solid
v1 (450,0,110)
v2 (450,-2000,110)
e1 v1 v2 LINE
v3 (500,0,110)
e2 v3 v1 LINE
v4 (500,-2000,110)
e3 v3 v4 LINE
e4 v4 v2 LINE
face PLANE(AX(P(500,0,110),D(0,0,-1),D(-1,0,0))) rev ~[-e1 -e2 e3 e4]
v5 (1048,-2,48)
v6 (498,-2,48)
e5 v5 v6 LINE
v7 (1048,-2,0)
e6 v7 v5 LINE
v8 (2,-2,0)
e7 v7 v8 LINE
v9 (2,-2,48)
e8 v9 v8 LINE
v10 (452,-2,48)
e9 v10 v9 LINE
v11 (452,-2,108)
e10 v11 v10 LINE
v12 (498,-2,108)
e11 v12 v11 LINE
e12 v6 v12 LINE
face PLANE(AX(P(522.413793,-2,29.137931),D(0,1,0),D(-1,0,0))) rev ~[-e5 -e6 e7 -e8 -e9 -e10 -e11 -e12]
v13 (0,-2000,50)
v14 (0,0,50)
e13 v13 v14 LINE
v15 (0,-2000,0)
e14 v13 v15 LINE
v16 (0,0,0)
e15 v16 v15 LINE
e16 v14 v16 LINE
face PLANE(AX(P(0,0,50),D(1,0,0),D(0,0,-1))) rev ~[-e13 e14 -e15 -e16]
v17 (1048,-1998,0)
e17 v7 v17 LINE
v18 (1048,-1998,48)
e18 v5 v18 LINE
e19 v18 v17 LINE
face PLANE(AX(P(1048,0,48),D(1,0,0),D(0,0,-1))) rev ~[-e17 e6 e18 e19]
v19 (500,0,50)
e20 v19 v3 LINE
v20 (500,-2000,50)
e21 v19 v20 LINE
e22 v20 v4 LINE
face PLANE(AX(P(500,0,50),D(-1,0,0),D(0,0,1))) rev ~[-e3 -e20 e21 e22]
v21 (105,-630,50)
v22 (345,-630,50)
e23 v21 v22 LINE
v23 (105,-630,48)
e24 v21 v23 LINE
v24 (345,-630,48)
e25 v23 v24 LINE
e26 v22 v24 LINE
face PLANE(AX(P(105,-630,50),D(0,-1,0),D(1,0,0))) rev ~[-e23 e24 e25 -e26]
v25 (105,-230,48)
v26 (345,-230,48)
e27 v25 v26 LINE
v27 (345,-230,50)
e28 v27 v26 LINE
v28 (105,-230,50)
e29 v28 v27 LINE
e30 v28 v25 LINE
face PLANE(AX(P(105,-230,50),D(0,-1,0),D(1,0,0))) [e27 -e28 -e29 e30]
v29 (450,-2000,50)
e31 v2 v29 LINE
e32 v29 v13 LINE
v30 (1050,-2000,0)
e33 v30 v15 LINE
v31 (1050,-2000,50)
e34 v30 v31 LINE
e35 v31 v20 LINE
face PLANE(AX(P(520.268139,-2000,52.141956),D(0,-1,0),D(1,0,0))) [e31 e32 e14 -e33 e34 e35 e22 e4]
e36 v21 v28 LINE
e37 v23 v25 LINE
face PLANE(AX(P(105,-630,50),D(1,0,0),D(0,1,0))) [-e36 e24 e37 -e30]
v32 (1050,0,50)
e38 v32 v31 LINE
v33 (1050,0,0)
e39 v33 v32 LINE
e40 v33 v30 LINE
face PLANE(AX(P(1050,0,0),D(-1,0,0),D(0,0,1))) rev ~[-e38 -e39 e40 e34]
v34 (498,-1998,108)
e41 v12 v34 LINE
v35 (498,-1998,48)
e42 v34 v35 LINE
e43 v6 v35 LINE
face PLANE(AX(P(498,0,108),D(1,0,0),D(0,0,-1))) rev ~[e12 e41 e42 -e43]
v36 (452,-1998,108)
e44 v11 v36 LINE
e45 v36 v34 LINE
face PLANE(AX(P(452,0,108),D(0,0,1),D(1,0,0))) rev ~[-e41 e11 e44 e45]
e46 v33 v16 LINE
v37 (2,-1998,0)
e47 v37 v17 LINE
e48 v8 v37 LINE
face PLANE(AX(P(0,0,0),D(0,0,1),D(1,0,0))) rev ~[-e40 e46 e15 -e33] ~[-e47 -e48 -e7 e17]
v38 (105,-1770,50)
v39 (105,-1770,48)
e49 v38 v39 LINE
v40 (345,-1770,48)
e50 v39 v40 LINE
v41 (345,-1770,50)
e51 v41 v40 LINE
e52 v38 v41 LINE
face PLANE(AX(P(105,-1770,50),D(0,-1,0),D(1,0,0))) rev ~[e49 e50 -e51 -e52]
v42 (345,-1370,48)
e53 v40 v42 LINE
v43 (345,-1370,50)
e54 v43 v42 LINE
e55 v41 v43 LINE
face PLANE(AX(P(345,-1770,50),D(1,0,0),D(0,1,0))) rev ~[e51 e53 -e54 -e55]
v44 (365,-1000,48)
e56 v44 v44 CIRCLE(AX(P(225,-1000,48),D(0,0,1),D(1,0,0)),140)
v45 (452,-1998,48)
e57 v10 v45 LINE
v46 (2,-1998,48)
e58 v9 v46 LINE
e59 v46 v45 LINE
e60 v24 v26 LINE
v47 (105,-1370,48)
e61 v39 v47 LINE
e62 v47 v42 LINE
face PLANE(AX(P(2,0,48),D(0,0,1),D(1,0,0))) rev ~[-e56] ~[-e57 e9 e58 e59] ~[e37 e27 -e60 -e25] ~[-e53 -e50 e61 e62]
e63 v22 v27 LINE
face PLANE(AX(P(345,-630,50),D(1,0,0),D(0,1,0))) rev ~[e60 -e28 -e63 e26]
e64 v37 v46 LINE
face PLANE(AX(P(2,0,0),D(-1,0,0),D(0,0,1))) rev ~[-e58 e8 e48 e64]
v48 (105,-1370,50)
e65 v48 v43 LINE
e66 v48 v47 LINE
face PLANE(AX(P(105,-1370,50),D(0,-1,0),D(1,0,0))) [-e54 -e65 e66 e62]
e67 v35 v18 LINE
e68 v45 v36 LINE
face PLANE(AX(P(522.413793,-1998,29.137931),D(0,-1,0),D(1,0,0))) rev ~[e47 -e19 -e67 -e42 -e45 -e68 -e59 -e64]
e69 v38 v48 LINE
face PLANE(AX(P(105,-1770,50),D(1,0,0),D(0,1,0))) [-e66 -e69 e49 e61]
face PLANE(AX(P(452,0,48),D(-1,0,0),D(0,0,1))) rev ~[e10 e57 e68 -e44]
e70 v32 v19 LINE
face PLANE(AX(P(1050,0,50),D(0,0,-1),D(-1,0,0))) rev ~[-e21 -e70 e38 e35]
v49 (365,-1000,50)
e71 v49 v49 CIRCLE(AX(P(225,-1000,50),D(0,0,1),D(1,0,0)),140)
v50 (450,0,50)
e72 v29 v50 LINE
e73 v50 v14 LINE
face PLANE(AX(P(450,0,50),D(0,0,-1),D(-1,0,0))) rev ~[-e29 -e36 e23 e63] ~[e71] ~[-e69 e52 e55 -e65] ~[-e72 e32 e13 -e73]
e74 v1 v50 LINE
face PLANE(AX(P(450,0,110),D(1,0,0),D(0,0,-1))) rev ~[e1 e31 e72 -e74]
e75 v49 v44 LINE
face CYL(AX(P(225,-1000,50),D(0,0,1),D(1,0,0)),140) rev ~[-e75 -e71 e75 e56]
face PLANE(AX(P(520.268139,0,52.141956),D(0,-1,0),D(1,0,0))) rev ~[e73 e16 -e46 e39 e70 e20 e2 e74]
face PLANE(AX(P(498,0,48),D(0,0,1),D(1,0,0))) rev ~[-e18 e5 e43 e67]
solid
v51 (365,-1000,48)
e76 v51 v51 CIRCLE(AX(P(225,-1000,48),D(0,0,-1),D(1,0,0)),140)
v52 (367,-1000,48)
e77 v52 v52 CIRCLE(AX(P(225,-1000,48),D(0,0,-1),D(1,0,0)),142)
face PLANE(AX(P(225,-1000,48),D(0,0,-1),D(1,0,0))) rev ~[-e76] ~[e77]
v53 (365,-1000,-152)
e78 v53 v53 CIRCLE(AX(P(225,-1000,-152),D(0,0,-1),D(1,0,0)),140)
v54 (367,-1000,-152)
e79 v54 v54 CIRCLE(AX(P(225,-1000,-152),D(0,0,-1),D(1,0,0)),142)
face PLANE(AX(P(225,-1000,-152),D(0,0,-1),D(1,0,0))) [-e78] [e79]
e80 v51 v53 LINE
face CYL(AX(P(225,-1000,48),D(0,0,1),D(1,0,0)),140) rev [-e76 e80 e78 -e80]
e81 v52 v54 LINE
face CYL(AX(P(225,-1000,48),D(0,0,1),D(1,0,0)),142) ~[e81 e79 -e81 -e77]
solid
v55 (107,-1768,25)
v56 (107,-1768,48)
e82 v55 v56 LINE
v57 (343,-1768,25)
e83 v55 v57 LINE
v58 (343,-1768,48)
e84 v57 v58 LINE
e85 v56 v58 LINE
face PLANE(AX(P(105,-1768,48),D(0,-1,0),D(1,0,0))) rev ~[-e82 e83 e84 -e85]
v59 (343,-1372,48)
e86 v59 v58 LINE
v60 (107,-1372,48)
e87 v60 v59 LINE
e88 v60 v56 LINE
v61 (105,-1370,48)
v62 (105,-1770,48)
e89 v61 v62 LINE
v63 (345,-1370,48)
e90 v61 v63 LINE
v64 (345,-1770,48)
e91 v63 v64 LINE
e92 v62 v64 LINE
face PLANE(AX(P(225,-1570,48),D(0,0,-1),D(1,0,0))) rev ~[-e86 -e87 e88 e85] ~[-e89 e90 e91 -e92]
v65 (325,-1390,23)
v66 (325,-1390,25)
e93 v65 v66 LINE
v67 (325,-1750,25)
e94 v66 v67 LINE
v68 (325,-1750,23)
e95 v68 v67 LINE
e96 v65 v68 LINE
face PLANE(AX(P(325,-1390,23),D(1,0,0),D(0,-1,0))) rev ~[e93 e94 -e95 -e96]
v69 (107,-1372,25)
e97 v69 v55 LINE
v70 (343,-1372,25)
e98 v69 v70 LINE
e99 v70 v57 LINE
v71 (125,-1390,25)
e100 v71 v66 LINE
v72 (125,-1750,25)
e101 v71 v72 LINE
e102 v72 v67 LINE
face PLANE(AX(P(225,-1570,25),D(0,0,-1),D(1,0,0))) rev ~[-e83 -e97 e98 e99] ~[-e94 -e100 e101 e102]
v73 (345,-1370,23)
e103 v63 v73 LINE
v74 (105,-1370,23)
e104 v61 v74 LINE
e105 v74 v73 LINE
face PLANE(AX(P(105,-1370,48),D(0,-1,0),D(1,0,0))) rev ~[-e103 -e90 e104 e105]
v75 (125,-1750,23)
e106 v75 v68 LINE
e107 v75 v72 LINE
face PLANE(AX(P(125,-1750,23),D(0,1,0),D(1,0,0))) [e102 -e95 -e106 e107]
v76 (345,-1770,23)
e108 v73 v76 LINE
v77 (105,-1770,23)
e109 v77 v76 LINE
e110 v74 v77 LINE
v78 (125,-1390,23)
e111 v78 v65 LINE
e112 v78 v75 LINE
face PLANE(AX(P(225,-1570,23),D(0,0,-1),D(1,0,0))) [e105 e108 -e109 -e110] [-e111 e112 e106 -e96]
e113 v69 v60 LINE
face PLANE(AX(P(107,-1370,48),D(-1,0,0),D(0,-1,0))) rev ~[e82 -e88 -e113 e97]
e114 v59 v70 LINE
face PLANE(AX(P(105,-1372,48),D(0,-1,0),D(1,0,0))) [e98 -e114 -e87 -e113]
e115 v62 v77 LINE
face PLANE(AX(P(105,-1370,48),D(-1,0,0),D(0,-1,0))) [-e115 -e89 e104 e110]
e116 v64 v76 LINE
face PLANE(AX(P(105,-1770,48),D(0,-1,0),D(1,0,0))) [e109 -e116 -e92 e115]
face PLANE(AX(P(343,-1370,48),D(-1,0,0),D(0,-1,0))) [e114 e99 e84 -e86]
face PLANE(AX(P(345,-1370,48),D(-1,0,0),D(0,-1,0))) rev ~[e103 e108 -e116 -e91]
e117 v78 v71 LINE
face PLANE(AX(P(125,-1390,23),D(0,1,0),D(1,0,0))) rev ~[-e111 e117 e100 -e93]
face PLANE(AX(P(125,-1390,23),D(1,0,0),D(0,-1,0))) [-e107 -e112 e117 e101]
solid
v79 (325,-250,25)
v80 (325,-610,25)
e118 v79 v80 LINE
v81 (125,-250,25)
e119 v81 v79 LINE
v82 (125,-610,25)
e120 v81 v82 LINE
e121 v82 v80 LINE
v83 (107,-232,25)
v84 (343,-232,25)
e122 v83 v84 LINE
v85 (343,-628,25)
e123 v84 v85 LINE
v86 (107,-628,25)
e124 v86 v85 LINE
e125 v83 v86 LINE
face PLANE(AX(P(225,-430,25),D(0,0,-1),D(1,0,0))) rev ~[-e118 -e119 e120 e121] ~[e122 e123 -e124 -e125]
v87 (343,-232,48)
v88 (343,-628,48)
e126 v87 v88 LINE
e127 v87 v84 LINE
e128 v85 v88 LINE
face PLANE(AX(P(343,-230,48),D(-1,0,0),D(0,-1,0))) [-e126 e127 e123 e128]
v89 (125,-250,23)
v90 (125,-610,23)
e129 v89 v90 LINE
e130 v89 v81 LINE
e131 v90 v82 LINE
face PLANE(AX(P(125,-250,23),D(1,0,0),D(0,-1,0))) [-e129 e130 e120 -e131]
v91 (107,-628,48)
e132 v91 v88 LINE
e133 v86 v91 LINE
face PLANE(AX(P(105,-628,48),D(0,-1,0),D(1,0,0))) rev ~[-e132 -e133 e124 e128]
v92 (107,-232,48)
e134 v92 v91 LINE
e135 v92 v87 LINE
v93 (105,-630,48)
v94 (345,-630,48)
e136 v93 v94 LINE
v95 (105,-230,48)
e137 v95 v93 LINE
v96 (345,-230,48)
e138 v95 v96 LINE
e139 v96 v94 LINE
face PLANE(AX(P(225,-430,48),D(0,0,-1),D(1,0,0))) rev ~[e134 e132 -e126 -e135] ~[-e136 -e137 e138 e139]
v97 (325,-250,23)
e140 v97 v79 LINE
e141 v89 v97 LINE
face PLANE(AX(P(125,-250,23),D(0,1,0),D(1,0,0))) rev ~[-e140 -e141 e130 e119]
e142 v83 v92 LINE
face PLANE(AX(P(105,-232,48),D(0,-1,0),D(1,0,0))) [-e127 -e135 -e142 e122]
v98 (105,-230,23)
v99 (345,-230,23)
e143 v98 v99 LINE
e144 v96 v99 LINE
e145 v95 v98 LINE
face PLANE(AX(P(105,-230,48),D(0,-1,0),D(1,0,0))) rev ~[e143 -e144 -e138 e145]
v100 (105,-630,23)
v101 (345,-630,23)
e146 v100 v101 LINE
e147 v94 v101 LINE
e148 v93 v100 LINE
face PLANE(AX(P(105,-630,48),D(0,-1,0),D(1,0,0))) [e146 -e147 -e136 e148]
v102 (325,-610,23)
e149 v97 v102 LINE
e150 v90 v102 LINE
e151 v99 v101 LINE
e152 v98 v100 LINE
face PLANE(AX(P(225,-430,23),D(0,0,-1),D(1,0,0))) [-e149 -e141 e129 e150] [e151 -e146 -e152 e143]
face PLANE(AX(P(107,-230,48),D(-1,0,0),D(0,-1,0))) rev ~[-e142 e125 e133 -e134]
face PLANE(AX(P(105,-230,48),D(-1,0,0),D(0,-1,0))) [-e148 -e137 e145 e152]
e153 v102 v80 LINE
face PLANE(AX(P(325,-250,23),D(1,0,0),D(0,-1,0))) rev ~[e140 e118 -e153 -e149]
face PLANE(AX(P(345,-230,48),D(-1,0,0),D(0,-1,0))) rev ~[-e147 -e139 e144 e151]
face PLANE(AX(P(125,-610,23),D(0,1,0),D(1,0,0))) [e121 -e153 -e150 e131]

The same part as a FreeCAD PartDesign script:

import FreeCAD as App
import Part
import Sketcher


def faces_at(feature, points):
    """Names of the faces that lie closest to the given points."""
    faces = feature.Shape.Faces
    near = lambda p: min(range(len(faces)), key=lambda i: faces[i].distToShape(Part.Vertex(*p))[0])
    return sorted({f"Face{near(p) + 1}" for p in points})


def add_polygon(sketch, points):
    """Adds a closed chain of lines whose ends are joined by coincident constraints."""
    first, n = sketch.GeometryCount, len(points)
    for a, b in zip(points, points[1:] + points[:1]):
        sketch.addGeometry(Part.LineSegment(App.Vector(*a, 0), App.Vector(*b, 0)), False)
    for i in range(n):
        sketch.addConstraint(Sketcher.Constraint("Coincident", first + i, 2, first + (i + 1) % n, 1))

doc = App.newDocument("Part")
body = doc.addObject("PartDesign::Body", "Body")

sketch1 = doc.addObject("Sketcher::SketchObject", "Sketch")
body.addObject(sketch1)
sketch1.AttachmentSupport = (doc.XZ_Plane, [""])
sketch1.MapMode = "FlatFace"
add_polygon(sketch1, [(0, 50), (0, 0), (2, 0), (2, 48), (452, 48), (452, 108), (498, 108), (498, 48), (1048, 48), (1048, 0), (1050, 0), (1050, 50), (500, 50), (500, 110), (450, 110), (450, 50)])
sketch1.addConstraint([
    Sketcher.Constraint("Vertical", 0),
    Sketcher.Constraint("Horizontal", 1),
    Sketcher.Constraint("Vertical", 2),
    Sketcher.Constraint("Horizontal", 3),
    Sketcher.Constraint("Vertical", 4),
    Sketcher.Constraint("Horizontal", 5),
    Sketcher.Constraint("Vertical", 6),
    Sketcher.Constraint("Horizontal", 7),
    Sketcher.Constraint("Vertical", 8),
    Sketcher.Constraint("Horizontal", 9),
    Sketcher.Constraint("Vertical", 10),
    Sketcher.Constraint("Horizontal", 11),
    Sketcher.Constraint("Vertical", 12),
    Sketcher.Constraint("Horizontal", 13),
    Sketcher.Constraint("Vertical", 14),
    Sketcher.Constraint("Horizontal", 15),
    Sketcher.Constraint("Coincident", 0, 2, -1, 1),
    Sketcher.Constraint("PointOnObject", 8, 2, -1),
    Sketcher.Constraint("Horizontal", 3, 2, 6, 2),
    Sketcher.Constraint("Horizontal", 11, 2, 14, 2),
    Sketcher.Constraint("Equal", 1, 9),
    Sketcher.Constraint("Equal", 7, 11),
    Sketcher.Constraint("Equal", 3, 15),
    Sketcher.Constraint("Equal", 13, 0),
    Sketcher.Constraint("Equal", 6, 12),
    Sketcher.Constraint("DistanceX", 1, 1, 1, 2, 2.0),
    Sketcher.Constraint("DistanceX", 3, 1, 3, 2, 450.0),
    Sketcher.Constraint("DistanceX", 5, 1, 5, 2, 46.0),
    Sketcher.Constraint("DistanceX", 7, 1, 7, 2, 550.0),
    Sketcher.Constraint("DistanceY", 2, 1, 2, 2, 48.0),
    Sketcher.Constraint("DistanceY", 4, 1, 4, 2, 60.0),
])
pad1 = doc.addObject("PartDesign::Pad", "Pad")
body.addObject(pad1)
pad1.Profile = sketch1
pad1.Length = 2000

sketch2 = doc.addObject("Sketcher::SketchObject", "Sketch001")
body.addObject(sketch2)
sketch2.AttachmentSupport = (doc.XY_Plane, [""])
sketch2.MapMode = "FlatFace"
sketch2.AttachmentOffset = App.Placement(App.Vector(0, 0, 50), App.Rotation())
sketch2.addGeometry(Part.Circle(App.Vector(225, -1000, 0), App.Vector(0, 0, 1), 140), False)
add_polygon(sketch2, [(105, -230), (105, -630), (345, -630), (345, -230)])
add_polygon(sketch2, [(105, -1370), (105, -1770), (345, -1770), (345, -1370)])
sketch2.addConstraint([
    Sketcher.Constraint("Vertical", 1),
    Sketcher.Constraint("Horizontal", 2),
    Sketcher.Constraint("Vertical", 3),
    Sketcher.Constraint("Horizontal", 4),
    Sketcher.Constraint("Vertical", 5),
    Sketcher.Constraint("Horizontal", 6),
    Sketcher.Constraint("Vertical", 7),
    Sketcher.Constraint("Horizontal", 8),
    Sketcher.Constraint("Vertical", 4, 2, 5, 2),
    Sketcher.Constraint("Vertical", 3, 2, 6, 2),
    Sketcher.Constraint("Equal", 3, 5),
    Sketcher.Constraint("Diameter", 0, 280.0),
    Sketcher.Constraint("DistanceX", 2, 1, 2, 2, 240.0),
    Sketcher.Constraint("DistanceY", 1, 2, 1, 1, 400.0),
    Sketcher.Constraint("DistanceX", -1, 1, 0, 3, 225.0),
    Sketcher.Constraint("DistanceY", 0, 3, -1, 1, 1000.0),
    Sketcher.Constraint("DistanceX", -1, 1, 1, 2, 105.0),
    Sketcher.Constraint("DistanceY", 1, 2, -1, 1, 630.0),
    Sketcher.Constraint("DistanceY", 5, 2, -1, 1, 1770.0),
])
pocket1 = doc.addObject("PartDesign::Pocket", "Pocket")
body.addObject(pocket1)
pocket1.Profile = sketch2
pocket1.Length = 25

sketch3 = doc.addObject("Sketcher::SketchObject", "Sketch002")
body.addObject(sketch3)
sketch3.AttachmentSupport = (doc.XZ_Plane, [""])
sketch3.MapMode = "FlatFace"
add_polygon(sketch3, [(1050, 50), (1050, 0), (0, 0), (0, 50), (450, 50), (450, 110), (500, 110), (500, 50)])
sketch3.addConstraint([
    Sketcher.Constraint("Vertical", 0),
    Sketcher.Constraint("Horizontal", 1),
    Sketcher.Constraint("Vertical", 2),
    Sketcher.Constraint("Horizontal", 3),
    Sketcher.Constraint("Vertical", 4),
    Sketcher.Constraint("Horizontal", 5),
    Sketcher.Constraint("Vertical", 6),
    Sketcher.Constraint("Horizontal", 7),
    Sketcher.Constraint("Coincident", 1, 2, -1, 1),
    Sketcher.Constraint("Horizontal", 3, 2, 6, 2),
    Sketcher.Constraint("Equal", 5, 0),
    Sketcher.Constraint("DistanceX", 1, 2, 1, 1, 1050.0),
    Sketcher.Constraint("DistanceX", 3, 1, 3, 2, 450.0),
    Sketcher.Constraint("DistanceX", 5, 1, 5, 2, 50.0),
    Sketcher.Constraint("DistanceY", 4, 1, 4, 2, 60.0),
])
pad2 = doc.addObject("PartDesign::Pad", "Pad001")
body.addObject(pad2)
pad2.Profile = sketch3
pad2.Length = 2

sketch4 = doc.addObject("Sketcher::SketchObject", "Sketch003")
body.addObject(sketch4)
sketch4.AttachmentSupport = (doc.XZ_Plane, [""])
sketch4.MapMode = "FlatFace"
sketch4.AttachmentOffset = App.Placement(App.Vector(0, 0, 2000), App.Rotation())
add_polygon(sketch4, [(0, 50), (0, 0), (1050, 0), (1050, 50), (500, 50), (500, 110), (450, 110), (450, 50)])
sketch4.addConstraint([
    Sketcher.Constraint("Vertical", 0),
    Sketcher.Constraint("Horizontal", 1),
    Sketcher.Constraint("Vertical", 2),
    Sketcher.Constraint("Horizontal", 3),
    Sketcher.Constraint("Vertical", 4),
    Sketcher.Constraint("Horizontal", 5),
    Sketcher.Constraint("Vertical", 6),
    Sketcher.Constraint("Horizontal", 7),
    Sketcher.Constraint("Coincident", 0, 2, -1, 1),
    Sketcher.Constraint("Horizontal", 3, 2, 6, 2),
    Sketcher.Constraint("Equal", 5, 0),
    Sketcher.Constraint("DistanceX", 1, 1, 1, 2, 1050.0),
    Sketcher.Constraint("DistanceX", 3, 2, 3, 1, 550.0),
    Sketcher.Constraint("DistanceX", 5, 2, 5, 1, 50.0),
    Sketcher.Constraint("DistanceY", 4, 1, 4, 2, 60.0),
])
pad3 = doc.addObject("PartDesign::Pad", "Pad002")
body.addObject(pad3)
pad3.Profile = sketch4
pad3.Length = 2
pad3.Reversed = True
body2 = doc.addObject("PartDesign::Body", "Body001")

sketch5 = doc.addObject("Sketcher::SketchObject", "Sketch004")
body2.addObject(sketch5)
sketch5.AttachmentSupport = (doc.getObject("XY_Plane001"), [""])
sketch5.MapMode = "FlatFace"
sketch5.AttachmentOffset = App.Placement(App.Vector(0, 0, 48), App.Rotation())
add_polygon(sketch5, [(105, -630), (105, -230), (345, -230), (345, -630)])
sketch5.addConstraint([
    Sketcher.Constraint("Vertical", 0),
    Sketcher.Constraint("Horizontal", 1),
    Sketcher.Constraint("Vertical", 2),
    Sketcher.Constraint("Horizontal", 3),
    Sketcher.Constraint("DistanceX", 1, 1, 1, 2, 240.0),
    Sketcher.Constraint("DistanceY", 0, 1, 0, 2, 400.0),
    Sketcher.Constraint("DistanceX", -1, 1, 0, 2, 105.0),
    Sketcher.Constraint("DistanceY", 0, 2, -1, 1, 230.0),
])
pad4 = doc.addObject("PartDesign::Pad", "Pad003")
body2.addObject(pad4)
pad4.Profile = sketch5
pad4.Length = 25
pad4.Reversed = True
doc.recompute()

thickness = doc.addObject("PartDesign::Thickness", "Thickness")
body2.addObject(thickness)
thickness.Base = (pad4, faces_at(pad4, [(225, -430, 48)]))
thickness.Value = 2
thickness.Reversed = True
thickness.Join = "Arc"
body3 = doc.addObject("PartDesign::Body", "Body002")

sketch6 = doc.addObject("Sketcher::SketchObject", "Sketch005")
body3.addObject(sketch6)
sketch6.AttachmentSupport = (doc.getObject("XY_Plane002"), [""])
sketch6.MapMode = "FlatFace"
sketch6.AttachmentOffset = App.Placement(App.Vector(0, 0, 48), App.Rotation())
add_polygon(sketch6, [(105, -1770), (105, -1370), (345, -1370), (345, -1770)])
sketch6.addConstraint([
    Sketcher.Constraint("Vertical", 0),
    Sketcher.Constraint("Horizontal", 1),
    Sketcher.Constraint("Vertical", 2),
    Sketcher.Constraint("Horizontal", 3),
    Sketcher.Constraint("DistanceX", 1, 1, 1, 2, 240.0),
    Sketcher.Constraint("DistanceY", 0, 1, 0, 2, 400.0),
    Sketcher.Constraint("DistanceX", -1, 1, 0, 2, 105.0),
    Sketcher.Constraint("DistanceY", 0, 2, -1, 1, 1370.0),
])
pad5 = doc.addObject("PartDesign::Pad", "Pad004")
body3.addObject(pad5)
pad5.Profile = sketch6
pad5.Length = 25
pad5.Reversed = True
doc.recompute()

thickness2 = doc.addObject("PartDesign::Thickness", "Thickness001")
body3.addObject(thickness2)
thickness2.Base = (pad5, faces_at(pad5, [(225, -1570, 48)]))
thickness2.Value = 2
thickness2.Reversed = True
thickness2.Join = "Arc"
body4 = doc.addObject("PartDesign::Body", "Body003")
body4.AllowCompound = True

sketch7 = doc.addObject("Sketcher::SketchObject", "Sketch006")
body4.addObject(sketch7)
sketch7.AttachmentSupport = (doc.getObject("XY_Plane003"), [""])
sketch7.MapMode = "FlatFace"
sketch7.AttachmentOffset = App.Placement(App.Vector(0, 0, 23), App.Rotation())
add_polygon(sketch7, [(125, -610), (125, -250), (325, -250), (325, -610)])
add_polygon(sketch7, [(125, -1750), (125, -1390), (325, -1390), (325, -1750)])
sketch7.addConstraint([
    Sketcher.Constraint("Vertical", 0),
    Sketcher.Constraint("Horizontal", 1),
    Sketcher.Constraint("Vertical", 2),
    Sketcher.Constraint("Horizontal", 3),
    Sketcher.Constraint("Vertical", 4),
    Sketcher.Constraint("Horizontal", 5),
    Sketcher.Constraint("Vertical", 6),
    Sketcher.Constraint("Horizontal", 7),
    Sketcher.Constraint("Vertical", 3, 2, 4, 2),
    Sketcher.Constraint("Vertical", 2, 2, 5, 2),
    Sketcher.Constraint("Equal", 2, 4),
    Sketcher.Constraint("DistanceX", 1, 1, 1, 2, 200.0),
    Sketcher.Constraint("DistanceY", 0, 1, 0, 2, 360.0),
    Sketcher.Constraint("DistanceX", -1, 1, 0, 2, 125.0),
    Sketcher.Constraint("DistanceY", 0, 2, -1, 1, 250.0),
    Sketcher.Constraint("DistanceY", 4, 2, -1, 1, 1390.0),
])
pad6 = doc.addObject("PartDesign::Pad", "Pad005")
body4.addObject(pad6)
pad6.Profile = sketch7
pad6.Length = 25
doc.recompute()

body5 = doc.addObject("PartDesign::Body", "Body004")
body5.BaseFeature = body4
boolean = doc.addObject("PartDesign::Boolean", "Boolean")
body2.addObject(boolean)
boolean.Type = "Cut"
boolean.addObjects([body5])
doc.recompute()

boolean2 = doc.addObject("PartDesign::Boolean", "Boolean001")
body3.addObject(boolean2)
boolean2.Type = "Cut"
boolean2.addObjects([body4])
body6 = doc.addObject("PartDesign::Body", "Body005")

sketch8 = doc.addObject("Sketcher::SketchObject", "Sketch007")
body6.addObject(sketch8)
sketch8.AttachmentSupport = (doc.getObject("XY_Plane005"), [""])
sketch8.MapMode = "FlatFace"
sketch8.AttachmentOffset = App.Placement(App.Vector(0, 0, 48), App.Rotation())
sketch8.addGeometry(Part.Circle(App.Vector(225, -1000, 0), App.Vector(0, 0, 1), 142), False)
sketch8.addConstraint([
    Sketcher.Constraint("Diameter", 0, 284.0),
    Sketcher.Constraint("DistanceX", -1, 1, 0, 3, 225.0),
    Sketcher.Constraint("DistanceY", 0, 3, -1, 1, 1000.0),
])
pad7 = doc.addObject("PartDesign::Pad", "Pad006")
body6.addObject(pad7)
pad7.Profile = sketch8
pad7.Length = 200
pad7.Reversed = True
doc.recompute()

thickness3 = doc.addObject("PartDesign::Thickness", "Thickness002")
body6.addObject(thickness3)
thickness3.Base = (pad7, faces_at(pad7, [(225, -1000, 48), (225, -1000, -152)]))
thickness3.Value = 2
thickness3.Reversed = True
thickness3.Join = "Arc"

doc.recompute()
